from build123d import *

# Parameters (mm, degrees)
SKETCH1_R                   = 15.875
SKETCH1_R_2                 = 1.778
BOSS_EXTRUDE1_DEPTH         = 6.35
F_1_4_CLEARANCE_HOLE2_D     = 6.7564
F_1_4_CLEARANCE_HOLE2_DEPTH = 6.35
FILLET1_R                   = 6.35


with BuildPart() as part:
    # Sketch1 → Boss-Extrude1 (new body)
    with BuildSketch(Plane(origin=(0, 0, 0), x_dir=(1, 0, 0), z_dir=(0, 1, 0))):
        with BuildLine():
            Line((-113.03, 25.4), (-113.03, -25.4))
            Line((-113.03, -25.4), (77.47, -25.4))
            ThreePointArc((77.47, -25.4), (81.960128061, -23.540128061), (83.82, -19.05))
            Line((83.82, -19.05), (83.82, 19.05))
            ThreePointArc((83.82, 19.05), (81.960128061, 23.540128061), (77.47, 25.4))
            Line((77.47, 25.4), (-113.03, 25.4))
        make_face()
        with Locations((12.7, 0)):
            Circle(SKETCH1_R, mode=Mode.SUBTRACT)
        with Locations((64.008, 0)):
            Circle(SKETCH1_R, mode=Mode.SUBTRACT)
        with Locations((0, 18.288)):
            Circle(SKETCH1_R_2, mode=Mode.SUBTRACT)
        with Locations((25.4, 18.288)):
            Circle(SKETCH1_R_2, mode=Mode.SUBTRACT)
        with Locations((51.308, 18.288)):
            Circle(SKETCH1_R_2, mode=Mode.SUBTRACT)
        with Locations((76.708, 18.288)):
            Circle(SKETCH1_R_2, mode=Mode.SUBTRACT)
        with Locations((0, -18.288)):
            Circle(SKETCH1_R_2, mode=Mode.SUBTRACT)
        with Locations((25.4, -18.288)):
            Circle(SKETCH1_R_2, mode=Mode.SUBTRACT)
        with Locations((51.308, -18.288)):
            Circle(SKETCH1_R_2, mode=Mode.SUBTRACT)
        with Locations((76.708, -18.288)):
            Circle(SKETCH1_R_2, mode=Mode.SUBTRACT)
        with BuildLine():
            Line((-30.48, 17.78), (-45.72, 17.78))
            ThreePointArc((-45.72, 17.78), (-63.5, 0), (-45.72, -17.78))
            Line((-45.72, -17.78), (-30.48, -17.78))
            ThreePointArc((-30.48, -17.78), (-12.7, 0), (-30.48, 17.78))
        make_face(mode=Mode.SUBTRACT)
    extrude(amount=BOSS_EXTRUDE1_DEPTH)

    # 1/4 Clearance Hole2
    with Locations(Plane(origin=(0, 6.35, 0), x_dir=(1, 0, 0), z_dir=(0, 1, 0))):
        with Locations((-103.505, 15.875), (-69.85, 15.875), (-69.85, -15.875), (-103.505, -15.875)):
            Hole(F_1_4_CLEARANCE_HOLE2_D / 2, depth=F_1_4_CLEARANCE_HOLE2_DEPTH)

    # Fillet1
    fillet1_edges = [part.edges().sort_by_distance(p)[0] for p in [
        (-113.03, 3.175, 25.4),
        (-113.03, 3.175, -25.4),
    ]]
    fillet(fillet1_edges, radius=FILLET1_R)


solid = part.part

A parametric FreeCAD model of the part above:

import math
import FreeCAD as App
import Part
import Sketcher
Q = App.Units.Quantity


def edges_at(feature, points):
    """Names of the edges that pass closest to the given points."""
    edges = feature.Shape.Edges
    near = lambda p: min(range(len(edges)), key=lambda i: edges[i].distToShape(Part.Vertex(*p))[0])
    return sorted({f"Edge{near(p) + 1}" for p in points})

doc = App.newDocument("Part")
params = doc.addObject("Spreadsheet::Sheet", "Params")
for row, (alias, value) in enumerate([
    ("sketch1_radius", "0.7 in"),
    ("sketch1_diameter", "0.14 in"),
    ("sketch1_diameter2", "1.25 in"),
    ("sketch1_height", "2 in"),
    ("sketch1_radius2", "0.25 in"),
    ("pad1_length", "0.25 in"),
    ("sketch2_diameter", "0.266 in"),
    ("hole_diameter", "0.266 in"),
    ("hole_depth", "0.25 in"),
    ("fillet_radius", "0.25 in"),
], start=1):
    params.set(f"A{row}", alias)
    params.set(f"B{row}", "=" + value)
    params.setAlias(f"B{row}", alias)

body = doc.addObject("PartDesign::Body", "Body")

# Sketch on XZ plane
sketch1 = body.newObject("Sketcher::SketchObject", "Sketch")
sketch1.AttachmentSupport = (doc.getObject("XZ_Plane"), [""])
sketch1.MapMode = "FlatFace"
sketch1.addGeometry([
    Part.LineSegment(App.Vector(-113, -25.4, 0), App.Vector(-113, 25.4, 0)),  # 0
    Part.LineSegment(App.Vector(-113, 25.4, 0), App.Vector(77.5, 25.4, 0)),  # 1
    Part.ArcOfCircle(Part.Circle(App.Vector(77.5, 19.1, 0), App.Vector(0, 0, 1), 6.3), math.radians(0), math.radians(90)),  # 2
    Part.LineSegment(App.Vector(83.8, 19.1, 0), App.Vector(83.8, -19.1, 0)),  # 3
    Part.ArcOfCircle(Part.Circle(App.Vector(77.5, -19.1, 0), App.Vector(0, 0, 1), 6.3), math.radians(-90), math.radians(0)),  # 4
    Part.LineSegment(App.Vector(77.5, -25.4, 0), App.Vector(-113, -25.4, 0)),  # 5
    Part.Circle(App.Vector(0, 18.3, 0), App.Vector(0, 0, 1), 1.8),  # 6
    Part.Circle(App.Vector(25.4, 18.3, 0), App.Vector(0, 0, 1), 1.8),  # 7
    Part.Circle(App.Vector(51.3, 18.3, 0), App.Vector(0, 0, 1), 1.8),  # 8
    Part.Circle(App.Vector(76.7, 18.3, 0), App.Vector(0, 0, 1), 1.8),  # 9
    Part.LineSegment(App.Vector(-45.7, -17.8, 0), App.Vector(-30.5, -17.8, 0)),  # 10
    Part.ArcOfCircle(Part.Circle(App.Vector(-30.5, 0, 0), App.Vector(0, 0, 1), 17.8), math.radians(-90), math.radians(90)),  # 11
    Part.LineSegment(App.Vector(-30.5, 17.8, 0), App.Vector(-45.7, 17.8, 0)),  # 12
    Part.ArcOfCircle(Part.Circle(App.Vector(-45.7, 0, 0), App.Vector(0, 0, 1), 17.8), math.radians(90), math.radians(270)),  # 13
    Part.Circle(App.Vector(0, -18.3, 0), App.Vector(0, 0, 1), 1.8),  # 14
    Part.Circle(App.Vector(12.7, 0, 0), App.Vector(0, 0, 1), 15.9),  # 15
    Part.Circle(App.Vector(64, 0, 0), App.Vector(0, 0, 1), 15.9),  # 16
    Part.Circle(App.Vector(25.4, -18.3, 0), App.Vector(0, 0, 1), 1.8),  # 17
    Part.Circle(App.Vector(51.3, -18.3, 0), App.Vector(0, 0, 1), 1.8),  # 18
    Part.Circle(App.Vector(76.7, -18.3, 0), App.Vector(0, 0, 1), 1.8),  # 19
], False)
sketch1.addConstraint([
    Sketcher.Constraint("Coincident", 0, 2, 1, 1),
    Sketcher.Constraint("Tangent", 1, 2, 2, 2),
    Sketcher.Constraint("Tangent", 2, 1, 3, 1),
    Sketcher.Constraint("Tangent", 3, 2, 4, 2),
    Sketcher.Constraint("Tangent", 4, 1, 5, 1),
    Sketcher.Constraint("Coincident", 5, 2, 0, 1),
    Sketcher.Constraint("Tangent", 10, 2, 11, 1),
    Sketcher.Constraint("Tangent", 11, 2, 12, 1),
    Sketcher.Constraint("Tangent", 12, 2, 13, 1),
    Sketcher.Constraint("Tangent", 13, 2, 10, 1),
    Sketcher.Constraint("Vertical", 0),
    Sketcher.Constraint("Horizontal", 1),
    Sketcher.Constraint("Vertical", 3),
    Sketcher.Constraint("Horizontal", 5),
    Sketcher.Constraint("Horizontal", 10),
    Sketcher.Constraint("Horizontal", 12),
    Sketcher.Constraint("Equal", 2, 4),
    Sketcher.Constraint("Equal", 6, 7),
    Sketcher.Constraint("Equal", 7, 8),
    Sketcher.Constraint("Equal", 8, 9),
    Sketcher.Constraint("Equal", 9, 14),
    Sketcher.Constraint("Equal", 15, 16),
    Sketcher.Constraint("Equal", 14, 17),
    Sketcher.Constraint("Equal", 17, 18),
    Sketcher.Constraint("Equal", 18, 19),
    Sketcher.Constraint("Symmetric", 6, 3, 14, 3, -1, 1),
    Sketcher.Constraint("Symmetric", 7, 3, 17, 3, -1),
    Sketcher.Constraint("Symmetric", 8, 3, 18, 3, -1),
    Sketcher.Constraint("Symmetric", 9, 3, 19, 3, -1),
    Sketcher.Constraint("PointOnObject", 6, 3, -2),
    Sketcher.Constraint("PointOnObject", 11, 3, -1),
    Sketcher.Constraint("PointOnObject", 15, 3, -1),
    Sketcher.Constraint("PointOnObject", 16, 3, -1),
    Sketcher.Constraint("Horizontal", 6, 3, 7, 3),
    Sketcher.Constraint("Horizontal", 7, 3, 8, 3),
    Sketcher.Constraint("Horizontal", 8, 3, 9, 3),
    Sketcher.Constraint("Radius", 11, Q("0.7 in")),
    Sketcher.Constraint("Diameter", 6, Q("0.14 in")),
    Sketcher.Constraint("Diameter", 15, Q("1.25 in")),
    Sketcher.Constraint("DistanceY", 0, 1, 0, 2, Q("2 in")),
    Sketcher.Constraint("Radius", 2, Q("0.25 in")),
    Sketcher.Constraint("DistanceX", 1, 1, 1, 2, Q("7.5 in")),
    Sketcher.Constraint("DistanceX", 10, 1, 10, 2, Q("0.6 in")),
    Sketcher.Constraint("DistanceX", -1, 1, 7, 3, Q("1 in")),
    Sketcher.Constraint("DistanceY", -1, 1, 0, 2, Q("1 in")),
    Sketcher.Constraint("DistanceX", 8, 3, 9, 3, Q("1 in")),
    Sketcher.Constraint("DistanceX", 11, 3, -1, 1, Q("1.2 in")),
    Sketcher.Constraint("DistanceX", -1, 1, 15, 3, Q("0.5 in")),
    Sketcher.Constraint("DistanceX", -1, 1, 2, 1, Q("3.3 in")),
    Sketcher.Constraint("DistanceX", 8, 3, 16, 3, Q("0.5 in")),
    Sketcher.Constraint("DistanceY", -1, 1, 6, 3, Q("0.72 in")),
    Sketcher.Constraint("DistanceX", -1, 1, 8, 3, Q("2.02 in")),
])
sketch1.setExpression("Constraints[36]", "Params.sketch1_radius")
sketch1.setExpression("Constraints[37]", "Params.sketch1_diameter")
sketch1.setExpression("Constraints[38]", "Params.sketch1_diameter2")
sketch1.setExpression("Constraints[39]", "Params.sketch1_height")
sketch1.setExpression("Constraints[40]", "Params.sketch1_radius2")
pad1 = body.newObject("PartDesign::Pad", "Pad")
pad1.Profile = sketch1
pad1.setExpression("Length", "Params.pad1_length")
pad1.Reversed = True

# Sketch on XZ plane
sketch2 = body.newObject("Sketcher::SketchObject", "Sketch001")
sketch2.AttachmentSupport = (doc.getObject("XZ_Plane"), [""])
sketch2.MapMode = "FlatFace"
sketch2.AttachmentOffset = App.Placement(App.Vector(0, 0, -0.25 * 25.4), App.Rotation())
sketch2.addGeometry([
    Part.Circle(App.Vector(-103.5, -15.9, 0), App.Vector(0, 0, 1), 3.4),
    Part.Circle(App.Vector(-69.8, -15.9, 0), App.Vector(0, 0, 1), 3.4),
    Part.Circle(App.Vector(-69.8, 15.9, 0), App.Vector(0, 0, 1), 3.4),
    Part.Circle(App.Vector(-103.5, 15.9, 0), App.Vector(0, 0, 1), 3.4),
], False)
sketch2.addConstraint([
    Sketcher.Constraint("Equal", 0, 1),
    Sketcher.Constraint("Equal", 1, 2),
    Sketcher.Constraint("Equal", 2, 3),
    Sketcher.Constraint("Symmetric", 1, 3, 2, 3, -1),
    Sketcher.Constraint("Symmetric", 0, 3, 3, 3, -1),
    Sketcher.Constraint("Horizontal", 0, 3, 1, 3),
    Sketcher.Constraint("Diameter", 0, Q("0.266 in")),
    Sketcher.Constraint("DistanceX", 1, 3, -1, 1, Q("2.75 in")),
    Sketcher.Constraint("DistanceY", 1, 3, 2, 3, Q("1.25 in")),
    Sketcher.Constraint("DistanceX", 0, 3, -1, 1, Q("4.075 in")),
])
sketch2.setExpression("Constraints[6]", "Params.sketch2_diameter")
doc.recompute()
hole = body.newObject("PartDesign::Hole", "Hole")
hole.Profile = sketch2
hole.ThreadType = "None"
hole.setExpression("Diameter", "Params.hole_diameter")
hole.DepthType = "Dimension"
hole.setExpression("Depth", "Params.hole_depth")
hole.DrillPoint = "Flat"
hole.Reversed = True
doc.recompute()

fillet = body.newObject("PartDesign::Fillet", "Fillet")
fillet.Base = (hole, edges_at(hole, [(-113.03, 3.175, 25.4), (-113.03, 3.175, -25.4)]))
fillet.setExpression("Radius", "Params.fillet_radius")

doc.recompute()
